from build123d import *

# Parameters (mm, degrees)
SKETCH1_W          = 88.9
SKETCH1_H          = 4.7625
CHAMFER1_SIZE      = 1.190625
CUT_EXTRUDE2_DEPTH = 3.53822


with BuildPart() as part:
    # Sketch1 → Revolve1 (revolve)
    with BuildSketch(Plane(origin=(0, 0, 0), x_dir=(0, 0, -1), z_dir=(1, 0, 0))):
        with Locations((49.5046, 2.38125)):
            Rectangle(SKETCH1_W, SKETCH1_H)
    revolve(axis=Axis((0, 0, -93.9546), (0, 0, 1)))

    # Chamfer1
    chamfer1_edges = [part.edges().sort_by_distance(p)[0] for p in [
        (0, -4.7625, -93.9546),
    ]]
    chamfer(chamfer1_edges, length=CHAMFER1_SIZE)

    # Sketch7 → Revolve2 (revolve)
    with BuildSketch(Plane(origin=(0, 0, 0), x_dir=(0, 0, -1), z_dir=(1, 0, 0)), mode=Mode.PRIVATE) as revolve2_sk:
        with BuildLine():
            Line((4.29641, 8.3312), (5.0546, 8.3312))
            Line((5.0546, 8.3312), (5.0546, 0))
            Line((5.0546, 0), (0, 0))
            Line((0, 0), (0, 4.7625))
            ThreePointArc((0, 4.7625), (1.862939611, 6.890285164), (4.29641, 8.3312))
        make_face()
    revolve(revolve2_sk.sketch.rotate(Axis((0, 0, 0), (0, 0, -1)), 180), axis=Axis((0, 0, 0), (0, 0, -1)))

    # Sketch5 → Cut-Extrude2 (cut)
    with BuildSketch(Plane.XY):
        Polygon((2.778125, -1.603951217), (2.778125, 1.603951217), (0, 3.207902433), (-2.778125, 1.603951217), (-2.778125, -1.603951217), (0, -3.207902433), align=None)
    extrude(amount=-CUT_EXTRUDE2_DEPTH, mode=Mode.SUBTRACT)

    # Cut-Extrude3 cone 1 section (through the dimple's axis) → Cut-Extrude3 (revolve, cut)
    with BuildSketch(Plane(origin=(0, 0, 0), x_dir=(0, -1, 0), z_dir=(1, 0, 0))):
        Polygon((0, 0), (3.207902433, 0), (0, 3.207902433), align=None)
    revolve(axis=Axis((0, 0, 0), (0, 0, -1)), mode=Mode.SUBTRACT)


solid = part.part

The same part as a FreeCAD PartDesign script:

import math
import FreeCAD as App
import Part
import Sketcher

V = App.Vector
Q = App.Units.Quantity


def edges_at(feature, points):
    """Names of the edges that pass closest to the given points."""
    edges = feature.Shape.Edges
    near = lambda p: min(range(len(edges)), key=lambda i: edges[i].distToShape(Part.Vertex(*p))[0])
    return sorted({f"Edge{near(p) + 1}" for p in points})


def add_polygon(sketch, points):
    """Adds a closed chain of lines whose ends are joined by coincident constraints."""
    first, n = sketch.GeometryCount, len(points)
    for a, b in zip(points, points[1:] + points[:1]):
        sketch.addGeometry(Part.LineSegment(App.Vector(*a, 0), App.Vector(*b, 0)), False)
    for i in range(n):
        sketch.addConstraint(Sketcher.Constraint("Coincident", first + i, 2, first + (i + 1) % n, 1))

doc = App.newDocument("Part")
body = doc.addObject("PartDesign::Body", "Body")

# Sketch on YZ plane
sketch1 = body.newObject("Sketcher::SketchObject", "Sketch")
sketch1.AttachmentSupport = (doc.getObject("YZ_Plane"), [""])
sketch1.MapMode = "FlatFace"
add_polygon(sketch1, [(4.8, -5.1), (0, -5.1), (0, -94), (4.8, -94)])  # lines 0-3
sketch1.addConstraint(Sketcher.Constraint("Horizontal", 0))
sketch1.addConstraint(Sketcher.Constraint("Vertical", 1))
sketch1.addConstraint(Sketcher.Constraint("Horizontal", 2))
sketch1.addConstraint(Sketcher.Constraint("Vertical", 3))
sketch1.addConstraint(Sketcher.Constraint("PointOnObject", 0, 2, -2))
sketch1.addConstraint(Sketcher.Constraint("DistanceY", 1, 2, 1, 1, Q("3.5 in")))
sketch1.addConstraint(Sketcher.Constraint("DistanceX", 0, 2, 0, 1, Q("0.1875 in")))
sketch1.addConstraint(Sketcher.Constraint("DistanceY", 0, 2, -1, 1, Q("0.199 in")))
revolution = body.newObject("PartDesign::Revolution", "Revolution")
revolution.Profile = sketch1
revolution.ReferenceAxis = (sketch1, ["V_Axis"])
revolution.Angle = 360
doc.recompute()

chamfer = body.newObject("PartDesign::Chamfer", "Chamfer")
chamfer.Base = (revolution, edges_at(revolution, [(0, -4.763, -93.955)]))
chamfer.Size = Q("0.046875 in")

# Sketch on YZ plane
sketch2 = body.newObject("Sketcher::SketchObject", "Sketch001")
sketch2.AttachmentSupport = (doc.getObject("YZ_Plane"), [""])
sketch2.MapMode = "FlatFace"
sketch2.addGeometry(Part.LineSegment(V(8.3, -5.1, 0), V(8.3, -4.3, 0)), False)
sketch2.addGeometry(Part.ArcOfCircle(Part.Circle(V(0, -7.6, 0), V(0, 0, 1), 9), math.radians(22), math.radians(58)), False)
sketch2.addGeometry(Part.LineSegment(V(4.8, 0, 0), V(0, 0, 0)), False)
sketch2.addGeometry(Part.LineSegment(V(0, 0, 0), V(0, -5.1, 0)), False)
sketch2.addGeometry(Part.LineSegment(V(0, -5.1, 0), V(8.3, -5.1, 0)), False)
sketch2.addConstraint(Sketcher.Constraint("Coincident", 0, 2, 1, 1))
sketch2.addConstraint(Sketcher.Constraint("Coincident", 1, 2, 2, 1))
sketch2.addConstraint(Sketcher.Constraint("Coincident", 2, 2, 3, 1))
sketch2.addConstraint(Sketcher.Constraint("Coincident", 3, 2, 4, 1))
sketch2.addConstraint(Sketcher.Constraint("Coincident", 4, 2, 0, 1))
sketch2.addConstraint(Sketcher.Constraint("Vertical", 0))
sketch2.addConstraint(Sketcher.Constraint("Horizontal", 2))
sketch2.addConstraint(Sketcher.Constraint("Vertical", 3))
sketch2.addConstraint(Sketcher.Constraint("Horizontal", 4))
sketch2.addConstraint(Sketcher.Constraint("Coincident", 2, 2, -1, 1))
sketch2.addConstraint(Sketcher.Constraint("PointOnObject", 1, 3, -2))
sketch2.addConstraint(Sketcher.Constraint("DistanceX", 2, 2, 2, 1, Q("0.1875 in")))
sketch2.addConstraint(Sketcher.Constraint("DistanceX", 4, 1, 4, 2, Q("0.328 in")))
sketch2.addConstraint(Sketcher.Constraint("DistanceY", 3, 2, 3, 1, Q("0.199 in")))
sketch2.addConstraint(Sketcher.Constraint("Radius", 1, Q("8.9572 mm")))
revolution2 = body.newObject("PartDesign::Revolution", "Revolution001")
revolution2.Profile = sketch2
revolution2.ReferenceAxis = (sketch2, ["V_Axis"])
revolution2.Angle = 360

# Sketch on XY plane
sketch3 = body.newObject("Sketcher::SketchObject", "Sketch002")
sketch3.AttachmentSupport = (doc.getObject("XY_Plane"), [""])
sketch3.MapMode = "FlatFace"
add_polygon(sketch3, [(2.8, -1.6), (2.8, 1.6), (0, 3.2), (-2.8, 1.6), (-2.8, -1.6), (0, -3.2)])  # lines 0-5
sketch3.addConstraint(Sketcher.Constraint("Vertical", 0))
sketch3.addConstraint(Sketcher.Constraint("Vertical", 3))
sketch3.addConstraint(Sketcher.Constraint("Symmetric", 0, 2, 3, 2, -1, 1))
sketch3.addConstraint(Sketcher.Constraint("Symmetric", 1, 2, 4, 2, -1, 1))
sketch3.addConstraint(Sketcher.Constraint("PointOnObject", 1, 2, -2))
sketch3.addConstraint(Sketcher.Constraint("Parallel", 2, 5))
sketch3.addConstraint(Sketcher.Constraint("Horizontal", 0, 2, 2, 2))
sketch3.addConstraint(Sketcher.Constraint("Angle", 1, Q("150 deg")))
sketch3.addConstraint(Sketcher.Constraint("DistanceX", -1, 1, 0, 2, Q("0.109375 in")))
sketch3.addConstraint(Sketcher.Constraint("DistanceY", 0, 1, 0, 2, Q("3.207902 mm")))
pocket1 = body.newObject("PartDesign::Pocket", "Pocket")
pocket1.Profile = sketch3
pocket1.Length = Q("0.1393 in")

# Sketch on YZ plane
sketch4 = body.newObject("Sketcher::SketchObject", "Sketch003")
sketch4.AttachmentSupport = (doc.getObject("YZ_Plane"), [""])
sketch4.MapMode = "FlatFace"
add_polygon(sketch4, [(0, 0), (-3.2, 0), (0, -3.2)])  # lines 0-2
sketch4.addConstraint(Sketcher.Constraint("Horizontal", 0))
sketch4.addConstraint(Sketcher.Constraint("Vertical", 2))
sketch4.addConstraint(Sketcher.Constraint("Coincident", 2, 2, -1, 1))
sketch4.addConstraint(Sketcher.Constraint("Equal", 0, 2))
sketch4.addConstraint(Sketcher.Constraint("Distance", 1, Q("4.536659 mm")))
groove = body.newObject("PartDesign::Groove", "Groove")
groove.Profile = sketch4
groove.ReferenceAxis = (sketch4, ["V_Axis"])
groove.Angle = 360

doc.recompute()
